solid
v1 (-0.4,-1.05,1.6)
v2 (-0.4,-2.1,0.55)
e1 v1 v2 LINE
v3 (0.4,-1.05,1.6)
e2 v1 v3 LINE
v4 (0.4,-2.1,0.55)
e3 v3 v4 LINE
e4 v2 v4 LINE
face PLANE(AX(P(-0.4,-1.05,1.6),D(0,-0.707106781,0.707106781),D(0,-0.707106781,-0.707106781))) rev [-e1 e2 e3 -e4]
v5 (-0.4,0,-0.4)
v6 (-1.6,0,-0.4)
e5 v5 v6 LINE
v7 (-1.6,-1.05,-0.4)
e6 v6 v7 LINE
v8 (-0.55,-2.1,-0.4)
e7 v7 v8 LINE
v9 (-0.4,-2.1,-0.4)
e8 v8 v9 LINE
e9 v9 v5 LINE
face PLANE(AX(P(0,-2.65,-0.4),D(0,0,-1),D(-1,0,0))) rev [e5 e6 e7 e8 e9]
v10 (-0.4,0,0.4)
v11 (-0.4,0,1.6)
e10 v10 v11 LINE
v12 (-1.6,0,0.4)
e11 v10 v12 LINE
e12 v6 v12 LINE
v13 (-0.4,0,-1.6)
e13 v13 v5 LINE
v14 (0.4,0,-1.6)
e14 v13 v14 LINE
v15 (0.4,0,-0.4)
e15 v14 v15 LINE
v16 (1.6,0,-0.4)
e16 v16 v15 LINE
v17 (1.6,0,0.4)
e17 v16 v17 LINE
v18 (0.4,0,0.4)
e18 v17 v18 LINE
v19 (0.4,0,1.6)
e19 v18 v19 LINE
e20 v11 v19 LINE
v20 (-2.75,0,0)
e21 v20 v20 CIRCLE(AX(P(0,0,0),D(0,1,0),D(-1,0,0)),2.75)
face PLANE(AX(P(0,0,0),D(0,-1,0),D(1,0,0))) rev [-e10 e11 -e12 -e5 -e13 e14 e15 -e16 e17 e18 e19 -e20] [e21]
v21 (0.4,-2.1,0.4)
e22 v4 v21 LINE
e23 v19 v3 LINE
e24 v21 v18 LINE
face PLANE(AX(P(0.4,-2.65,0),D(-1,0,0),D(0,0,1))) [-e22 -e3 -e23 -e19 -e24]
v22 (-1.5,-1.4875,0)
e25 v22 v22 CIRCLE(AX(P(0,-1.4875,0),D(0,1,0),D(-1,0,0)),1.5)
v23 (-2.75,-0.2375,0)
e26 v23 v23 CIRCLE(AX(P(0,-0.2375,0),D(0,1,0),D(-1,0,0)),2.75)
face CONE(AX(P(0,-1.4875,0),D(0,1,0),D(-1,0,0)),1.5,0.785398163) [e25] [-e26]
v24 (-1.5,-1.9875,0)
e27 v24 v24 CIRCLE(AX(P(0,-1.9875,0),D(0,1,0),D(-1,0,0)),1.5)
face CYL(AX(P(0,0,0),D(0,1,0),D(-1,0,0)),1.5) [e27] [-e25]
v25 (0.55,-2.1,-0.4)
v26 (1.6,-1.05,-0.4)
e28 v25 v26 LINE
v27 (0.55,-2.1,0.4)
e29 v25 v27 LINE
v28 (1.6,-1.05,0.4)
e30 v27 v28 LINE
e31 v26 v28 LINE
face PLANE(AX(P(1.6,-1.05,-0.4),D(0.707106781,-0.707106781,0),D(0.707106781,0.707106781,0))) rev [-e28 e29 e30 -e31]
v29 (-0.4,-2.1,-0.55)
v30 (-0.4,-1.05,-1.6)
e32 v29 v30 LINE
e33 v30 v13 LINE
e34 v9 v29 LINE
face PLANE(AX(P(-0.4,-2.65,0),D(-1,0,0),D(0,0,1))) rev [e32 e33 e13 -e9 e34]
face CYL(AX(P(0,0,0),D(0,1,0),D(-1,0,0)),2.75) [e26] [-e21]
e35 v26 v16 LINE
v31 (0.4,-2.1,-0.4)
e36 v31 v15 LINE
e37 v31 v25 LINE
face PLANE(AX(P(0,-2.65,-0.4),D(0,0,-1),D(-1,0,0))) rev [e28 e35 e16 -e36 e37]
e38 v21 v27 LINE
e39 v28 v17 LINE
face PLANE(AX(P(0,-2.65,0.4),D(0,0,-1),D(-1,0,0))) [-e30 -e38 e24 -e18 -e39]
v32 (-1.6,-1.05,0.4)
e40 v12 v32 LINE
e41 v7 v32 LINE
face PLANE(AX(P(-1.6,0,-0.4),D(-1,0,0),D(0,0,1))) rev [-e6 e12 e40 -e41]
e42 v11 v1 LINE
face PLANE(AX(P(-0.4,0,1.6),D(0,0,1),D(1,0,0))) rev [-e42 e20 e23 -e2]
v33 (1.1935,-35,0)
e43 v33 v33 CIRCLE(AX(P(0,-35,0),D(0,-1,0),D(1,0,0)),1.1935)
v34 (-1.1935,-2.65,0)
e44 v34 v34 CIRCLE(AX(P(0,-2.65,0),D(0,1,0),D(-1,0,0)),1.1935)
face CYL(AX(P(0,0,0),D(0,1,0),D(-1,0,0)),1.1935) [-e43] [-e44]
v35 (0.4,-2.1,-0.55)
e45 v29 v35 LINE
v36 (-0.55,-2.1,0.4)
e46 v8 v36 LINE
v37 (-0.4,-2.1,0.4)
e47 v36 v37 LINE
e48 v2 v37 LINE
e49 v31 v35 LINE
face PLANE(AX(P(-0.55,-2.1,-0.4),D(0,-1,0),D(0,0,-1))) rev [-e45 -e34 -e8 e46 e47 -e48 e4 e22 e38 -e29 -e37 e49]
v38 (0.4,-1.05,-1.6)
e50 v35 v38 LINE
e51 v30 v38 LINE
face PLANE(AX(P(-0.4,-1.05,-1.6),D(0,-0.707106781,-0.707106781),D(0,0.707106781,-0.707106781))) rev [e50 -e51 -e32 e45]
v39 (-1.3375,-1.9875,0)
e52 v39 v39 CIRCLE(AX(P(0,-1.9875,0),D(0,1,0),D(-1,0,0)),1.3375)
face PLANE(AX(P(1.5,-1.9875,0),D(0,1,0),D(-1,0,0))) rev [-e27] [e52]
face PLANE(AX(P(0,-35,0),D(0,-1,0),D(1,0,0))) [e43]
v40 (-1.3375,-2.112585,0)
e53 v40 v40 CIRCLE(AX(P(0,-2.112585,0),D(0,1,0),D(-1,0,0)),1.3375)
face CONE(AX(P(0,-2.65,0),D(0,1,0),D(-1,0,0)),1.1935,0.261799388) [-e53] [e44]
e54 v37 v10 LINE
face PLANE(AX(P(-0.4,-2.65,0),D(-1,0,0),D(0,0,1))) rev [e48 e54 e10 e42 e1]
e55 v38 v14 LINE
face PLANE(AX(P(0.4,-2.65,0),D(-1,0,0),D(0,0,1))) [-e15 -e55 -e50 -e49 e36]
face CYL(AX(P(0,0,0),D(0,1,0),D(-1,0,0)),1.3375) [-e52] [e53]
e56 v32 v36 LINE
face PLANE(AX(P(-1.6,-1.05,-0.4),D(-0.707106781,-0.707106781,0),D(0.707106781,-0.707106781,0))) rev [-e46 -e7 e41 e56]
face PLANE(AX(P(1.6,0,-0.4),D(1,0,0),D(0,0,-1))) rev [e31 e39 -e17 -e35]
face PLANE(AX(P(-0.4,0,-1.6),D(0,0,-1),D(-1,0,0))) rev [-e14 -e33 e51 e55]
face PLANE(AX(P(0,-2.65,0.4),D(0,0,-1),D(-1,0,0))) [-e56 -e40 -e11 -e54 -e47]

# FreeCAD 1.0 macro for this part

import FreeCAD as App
import Part
import Sketcher

V = App.Vector
Q = App.Units.Quantity

doc = App.newDocument("Part")
body = doc.addObject("PartDesign::Body", "Body")

sketch1 = body.newObject("Sketcher::SketchObject", "Sketch")
sketch1.AttachmentSupport = (doc.getObject("XY_Plane"), [""])
sketch1.MapMode = "FlatFace"
sketch1.addGeometry([
    Part.LineSegment(V(2.75, 0, 0), V(0, 0, 0)),
    Part.LineSegment(V(0, 0, 0), V(0, -8, 0)),
    Part.LineSegment(V(0, -8, 0), V(1.19, -8, 0)),
    Part.LineSegment(V(1.19, -8, 0), V(1.19, -2.65, 0)),
    Part.LineSegment(V(1.19, -2.65, 0), V(1.34, -2.11, 0)),
    Part.LineSegment(V(1.34, -2.11, 0), V(1.34, -1.99, 0)),
    Part.LineSegment(V(1.34, -1.99, 0), V(1.5, -1.99, 0)),
    Part.LineSegment(V(1.5, -1.99, 0), V(1.5, -1.49, 0)),
    Part.LineSegment(V(1.5, -1.49, 0), V(2.75, -0.24, 0)),
    Part.LineSegment(V(2.75, -0.24, 0), V(2.75, 0, 0)),
], False)
sketch1.addConstraint([
    Sketcher.Constraint("Coincident", 0, 2, 1, 1),
    Sketcher.Constraint("Coincident", 1, 2, 2, 1),
    Sketcher.Constraint("Coincident", 2, 2, 3, 1),
    Sketcher.Constraint("Coincident", 3, 2, 4, 1),
    Sketcher.Constraint("Coincident", 4, 2, 5, 1),
    Sketcher.Constraint("Coincident", 5, 2, 6, 1),
    Sketcher.Constraint("Coincident", 6, 2, 7, 1),
    Sketcher.Constraint("Coincident", 7, 2, 8, 1),
    Sketcher.Constraint("Coincident", 8, 2, 9, 1),
    Sketcher.Constraint("Coincident", 9, 2, 0, 1),
    Sketcher.Constraint("Horizontal", 0),
    Sketcher.Constraint("Vertical", 1),
    Sketcher.Constraint("Horizontal", 2),
    Sketcher.Constraint("Vertical", 3),
    Sketcher.Constraint("Vertical", 5),
    Sketcher.Constraint("Horizontal", 6),
    Sketcher.Constraint("Vertical", 7),
    Sketcher.Constraint("Vertical", 9),
    Sketcher.Constraint("Coincident", 0, 2, -1, 1),
    Sketcher.Constraint("DistanceY", 1, 2, 1, 1, 8.0),
    Sketcher.Constraint("Angle", 4, Q("75 deg")),
    Sketcher.Constraint("Angle", 8, Q("45 deg")),
    Sketcher.Constraint("DistanceY", 7, 1, 7, 2, 0.5),
    Sketcher.Constraint("DistanceX", 0, 2, 0, 1, 2.75),
    Sketcher.Constraint("DistanceY", 3, 1, 3, 2, 5.35),
    Sketcher.Constraint("DistanceX", -1, 1, 6, 2, 1.5),
    Sketcher.Constraint("DistanceX", 2, 1, 2, 2, 1.1935),
    Sketcher.Constraint("DistanceX", 6, 1, 6, 2, 0.1625),
    Sketcher.Constraint("DistanceY", 9, 1, 9, 2, 0.2375),
])
revolution = body.newObject("PartDesign::Revolution", "Revolution")
revolution.Profile = sketch1
revolution.ReferenceAxis = (sketch1, ["V_Axis"])
revolution.Angle = 360

sketch2 = body.newObject("Sketcher::SketchObject", "Sketch001")
sketch2.AttachmentSupport = (doc.getObject("XY_Plane"), [""])
sketch2.MapMode = "FlatFace"
sketch2.addGeometry([
    Part.LineSegment(V(-0.6, -2.1, 0), V(0.6, -2.1, 0)),
    Part.LineSegment(V(0.6, -2.1, 0), V(1.6, -1.1, 0)),
    Part.LineSegment(V(1.6, -1.1, 0), V(1.6, 0, 0)),
    Part.LineSegment(V(1.6, 0, 0), V(-1.6, 0, 0)),
    Part.LineSegment(V(-1.6, 0, 0), V(-1.6, -1.1, 0)),
    Part.LineSegment(V(-1.6, -1.1, 0), V(-0.6, -2.1, 0)),
], False)
sketch2.addConstraint([
    Sketcher.Constraint("Coincident", 0, 2, 1, 1),
    Sketcher.Constraint("Coincident", 1, 2, 2, 1),
    Sketcher.Constraint("Coincident", 2, 2, 3, 1),
    Sketcher.Constraint("Coincident", 3, 2, 4, 1),
    Sketcher.Constraint("Coincident", 4, 2, 5, 1),
    Sketcher.Constraint("Coincident", 5, 2, 0, 1),
    Sketcher.Constraint("Horizontal", 0),
    Sketcher.Constraint("Vertical", 2),
    Sketcher.Constraint("Horizontal", 3),
    Sketcher.Constraint("Vertical", 4),
    Sketcher.Constraint("Symmetric", 2, 2, 3, 2, -1, 1),
    Sketcher.Constraint("Perpendicular", 1, 5),
    Sketcher.Constraint("Horizontal", 1, 2, 4, 2),
    Sketcher.Constraint("Equal", 1, 5),
    Sketcher.Constraint("DistanceX", 0, 1, 0, 2, 1.1),
    Sketcher.Constraint("DistanceX", 3, 2, 3, 1, 3.2),
    Sketcher.Constraint("DistanceY", 2, 1, 2, 2, 1.05),
])
pocket1 = body.newObject("PartDesign::Pocket", "Pocket")
pocket1.Profile = sketch2
pocket1.Type = "TwoLengths"
pocket1.Length = 0.4
pocket1.Length2 = 0.4
pocket1.Reversed = True

sketch3 = body.newObject("Sketcher::SketchObject", "Sketch002")
sketch3.AttachmentSupport = (doc.getObject("YZ_Plane"), [""])
sketch3.MapMode = "FlatFace"
sketch3.addGeometry([
    Part.LineSegment(V(-2.1, 0.6, 0), V(-2.1, -0.6, 0)),
    Part.LineSegment(V(-2.1, -0.6, 0), V(-1.1, -1.6, 0)),
    Part.LineSegment(V(-1.1, -1.6, 0), V(0, -1.6, 0)),
    Part.LineSegment(V(0, -1.6, 0), V(0, 1.6, 0)),
    Part.LineSegment(V(0, 1.6, 0), V(-1.1, 1.6, 0)),
    Part.LineSegment(V(-1.1, 1.6, 0), V(-2.1, 0.6, 0)),
], False)
sketch3.addConstraint([
    Sketcher.Constraint("Coincident", 0, 2, 1, 1),
    Sketcher.Constraint("Coincident", 1, 2, 2, 1),
    Sketcher.Constraint("Coincident", 2, 2, 3, 1),
    Sketcher.Constraint("Coincident", 3, 2, 4, 1),
    Sketcher.Constraint("Coincident", 4, 2, 5, 1),
    Sketcher.Constraint("Coincident", 5, 2, 0, 1),
    Sketcher.Constraint("Vertical", 0),
    Sketcher.Constraint("Horizontal", 2),
    Sketcher.Constraint("Vertical", 3),
    Sketcher.Constraint("Horizontal", 4),
    Sketcher.Constraint("Symmetric", 2, 2, 3, 2, -1, 1),
    Sketcher.Constraint("Perpendicular", 1, 5),
    Sketcher.Constraint("Vertical", 1, 2, 4, 2),
    Sketcher.Constraint("Equal", 1, 5),
    Sketcher.Constraint("DistanceY", 0, 2, 0, 1, 1.1),
    Sketcher.Constraint("DistanceY", 3, 1, 3, 2, 3.2),
    Sketcher.Constraint("DistanceX", 2, 1, 2, 2, 1.05),
])
pocket2 = body.newObject("PartDesign::Pocket", "Pocket001")
pocket2.Profile = sketch3
pocket2.Type = "TwoLengths"
pocket2.Length = 0.4
pocket2.Length2 = 0.4
pocket2.Reversed = True

sketch4 = body.newObject("Sketcher::SketchObject", "Sketch003")
sketch4.AttachmentSupport = (doc.getObject("XZ_Plane"), [""])
sketch4.MapMode = "FlatFace"
sketch4.AttachmentOffset = App.Placement(V(0, 0, 35), App.Rotation())
sketch4.addGeometry(Part.Circle(V(0, 0, 0), V(0, 0, 1), 1.2), False)
sketch4.addConstraint([
    Sketcher.Constraint("Coincident", 0, 3, -1, 1),
    Sketcher.Constraint("Diameter", 0, 2.387),
])
pad1 = body.newObject("PartDesign::Pad", "Pad")
pad1.Profile = sketch4
pad1.Length = 27
pad1.Reversed = True

doc.recompute()
